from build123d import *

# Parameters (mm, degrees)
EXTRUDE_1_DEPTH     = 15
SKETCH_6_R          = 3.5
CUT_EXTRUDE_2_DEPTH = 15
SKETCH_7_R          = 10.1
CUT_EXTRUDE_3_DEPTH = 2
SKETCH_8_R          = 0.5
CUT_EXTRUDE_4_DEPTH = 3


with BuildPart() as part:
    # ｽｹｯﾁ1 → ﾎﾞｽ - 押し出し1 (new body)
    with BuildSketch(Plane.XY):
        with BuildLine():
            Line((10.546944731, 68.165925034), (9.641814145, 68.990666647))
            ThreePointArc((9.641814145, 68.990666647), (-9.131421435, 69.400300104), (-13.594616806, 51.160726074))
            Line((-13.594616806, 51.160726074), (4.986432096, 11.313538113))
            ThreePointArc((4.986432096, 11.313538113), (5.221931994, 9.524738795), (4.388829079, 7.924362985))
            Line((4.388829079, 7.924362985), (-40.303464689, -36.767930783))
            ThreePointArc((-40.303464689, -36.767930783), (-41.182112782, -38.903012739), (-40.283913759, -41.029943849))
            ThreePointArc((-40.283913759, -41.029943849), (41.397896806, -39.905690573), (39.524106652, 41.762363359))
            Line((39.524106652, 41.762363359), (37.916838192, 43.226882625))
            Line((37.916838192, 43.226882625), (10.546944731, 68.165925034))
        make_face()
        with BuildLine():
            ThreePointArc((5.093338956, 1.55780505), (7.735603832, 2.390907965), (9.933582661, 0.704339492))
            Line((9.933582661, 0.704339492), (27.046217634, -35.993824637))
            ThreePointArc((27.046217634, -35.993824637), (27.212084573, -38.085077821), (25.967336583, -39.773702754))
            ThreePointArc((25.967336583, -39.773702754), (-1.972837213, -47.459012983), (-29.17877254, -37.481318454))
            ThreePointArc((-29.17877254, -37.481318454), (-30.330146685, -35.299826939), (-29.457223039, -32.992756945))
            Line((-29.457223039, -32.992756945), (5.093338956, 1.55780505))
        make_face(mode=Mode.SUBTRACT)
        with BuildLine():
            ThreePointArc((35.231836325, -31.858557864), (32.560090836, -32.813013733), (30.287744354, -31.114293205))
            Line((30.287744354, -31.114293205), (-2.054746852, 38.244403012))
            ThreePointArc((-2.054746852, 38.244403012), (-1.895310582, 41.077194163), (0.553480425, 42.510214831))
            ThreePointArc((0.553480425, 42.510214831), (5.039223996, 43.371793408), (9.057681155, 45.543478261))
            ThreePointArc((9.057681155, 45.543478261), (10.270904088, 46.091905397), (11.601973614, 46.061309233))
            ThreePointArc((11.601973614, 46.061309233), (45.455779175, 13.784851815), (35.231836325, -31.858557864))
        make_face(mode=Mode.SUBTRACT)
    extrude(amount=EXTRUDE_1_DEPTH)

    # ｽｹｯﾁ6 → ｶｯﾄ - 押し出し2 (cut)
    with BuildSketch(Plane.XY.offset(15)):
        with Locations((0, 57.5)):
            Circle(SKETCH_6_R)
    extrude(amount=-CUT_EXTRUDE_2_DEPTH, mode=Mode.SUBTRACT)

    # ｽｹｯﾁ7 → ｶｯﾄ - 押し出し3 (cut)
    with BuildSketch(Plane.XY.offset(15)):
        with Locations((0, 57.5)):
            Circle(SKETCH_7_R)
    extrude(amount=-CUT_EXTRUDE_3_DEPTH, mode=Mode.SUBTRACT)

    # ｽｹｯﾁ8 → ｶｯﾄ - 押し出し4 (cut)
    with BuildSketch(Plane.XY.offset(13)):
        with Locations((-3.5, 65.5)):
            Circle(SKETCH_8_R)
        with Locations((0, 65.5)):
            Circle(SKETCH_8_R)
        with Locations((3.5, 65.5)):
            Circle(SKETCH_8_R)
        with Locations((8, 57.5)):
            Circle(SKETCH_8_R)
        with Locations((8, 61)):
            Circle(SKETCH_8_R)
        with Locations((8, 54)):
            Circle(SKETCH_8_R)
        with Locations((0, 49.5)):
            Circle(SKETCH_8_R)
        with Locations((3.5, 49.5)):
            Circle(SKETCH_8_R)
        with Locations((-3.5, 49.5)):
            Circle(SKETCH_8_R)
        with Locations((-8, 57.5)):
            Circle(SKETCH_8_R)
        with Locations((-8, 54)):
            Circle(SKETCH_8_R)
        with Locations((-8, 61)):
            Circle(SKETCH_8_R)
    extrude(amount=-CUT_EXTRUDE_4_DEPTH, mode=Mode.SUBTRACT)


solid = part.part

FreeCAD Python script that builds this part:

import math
import FreeCAD as App
import Part
import Sketcher

V = App.Vector
Q = App.Units.Quantity

doc = App.newDocument("Part")
body = doc.addObject("PartDesign::Body", "Body")

sketch1 = body.newObject("Sketcher::SketchObject", "Sketch")
sketch1.AttachmentSupport = (doc.getObject("XY_Plane"), [""])
sketch1.MapMode = "FlatFace"
sketch1.addGeometry([
    Part.LineSegment(V(10.546945, 68.165925, 0), V(9.641814, 68.990667, 0)),
    Part.ArcOfCircle(Part.Circle(V(0, 57.5, 0), V(0, 0, 1), 15), math.radians(50), math.radians(205)),
    Part.LineSegment(V(-13.594617, 51.160726, 0), V(4.986432, 11.313538, 0)),
    Part.ArcOfCircle(Part.Circle(V(2.267509, 10.045683, 0), V(0, 0, 1), 3), math.radians(-45), math.radians(25)),
    Part.LineSegment(V(4.388829, 7.924363, 0), V(-40.303465, -36.767931, 0)),
    Part.ArcOfCircle(Part.Circle(V(-38.182144, -38.889251, 0), V(0, 0, 1), 3), math.radians(135), math.radians(225.525657)),
    Part.ArcOfCircle(Part.Circle(V(0, 0, 0), V(0, 0, 1), 57.5), math.radians(-134.474343), math.radians(46.577265)),
    Part.LineSegment(V(39.524107, 41.762363, 0), V(37.916838, 43.226883, 0)),
    Part.LineSegment(V(37.916838, 43.226883, 0), V(10.546945, 68.165925, 0)),
    Part.LineSegment(V(-29.457223, -32.992757, 0), V(5.093339, 1.557805, 0)),
    Part.ArcOfCircle(Part.Circle(V(7.214659, -0.563515, 0), V(0, 0, 1), 3), math.radians(25), math.radians(135)),
    Part.LineSegment(V(9.933583, 0.704339, 0), V(27.046218, -35.993825, 0)),
    Part.ArcOfCircle(Part.Circle(V(24.327294, -37.261679, 0), V(0, 0, 1), 3), math.radians(-56.860403), math.radians(25)),
    Part.ArcOfCircle(Part.Circle(V(0, 0, 0), V(0, 0, 1), 47.5), math.radians(-127.900345), math.radians(-56.860403)),
    Part.ArcOfCircle(Part.Circle(V(-27.335903, -35.114077, 0), V(0, 0, 1), 3), math.radians(135), math.radians(232.099655)),
    Part.ArcOfCircle(Part.Circle(V(0, 0, 0), V(0, 0, 1), 47.5), math.radians(-42.121615), math.radians(75.862362)),
    Part.ArcOfCircle(Part.Circle(V(33.006668, -29.846438, 0), V(0, 0, 1), 3), math.radians(-155), math.radians(-42.121615)),
    Part.LineSegment(V(30.287744, -31.114293, 0), V(-2.054747, 38.244403, 0)),
    Part.ArcOfCircle(Part.Circle(V(0.664177, 39.512258, 0), V(0, 0, 1), 3), math.radians(92.11462), math.radians(205)),
    Part.ArcOfCircle(Part.Circle(V(0, 57.5, 0), V(0, 0, 1), 15), math.radians(-87.88538), math.radians(-52.854196)),
    Part.ArcOfCircle(Part.Circle(V(10.869217, 43.152174, 0), V(0, 0, 1), 3), math.radians(75.862362), math.radians(127.145804)),
], False)
sketch1.addConstraint([
    Sketcher.Constraint("Coincident", 0, 2, 1, 1),
    Sketcher.Constraint("Coincident", 1, 2, 2, 1),
    Sketcher.Constraint("Coincident", 2, 2, 3, 2),
    Sketcher.Constraint("Coincident", 3, 1, 4, 1),
    Sketcher.Constraint("Coincident", 4, 2, 5, 1),
    Sketcher.Constraint("Coincident", 5, 2, 6, 1),
    Sketcher.Constraint("Coincident", 6, 2, 7, 1),
    Sketcher.Constraint("Coincident", 7, 2, 8, 1),
    Sketcher.Constraint("Coincident", 8, 2, 0, 1),
    Sketcher.Constraint("Coincident", 9, 2, 10, 2),
    Sketcher.Constraint("Coincident", 10, 1, 11, 1),
    Sketcher.Constraint("Coincident", 11, 2, 12, 2),
    Sketcher.Constraint("Coincident", 12, 1, 13, 2),
    Sketcher.Constraint("Coincident", 13, 1, 14, 2),
    Sketcher.Constraint("Coincident", 14, 1, 9, 1),
    Sketcher.Constraint("Coincident", 15, 1, 16, 2),
    Sketcher.Constraint("Coincident", 16, 1, 17, 1),
    Sketcher.Constraint("Coincident", 17, 2, 18, 2),
    Sketcher.Constraint("Coincident", 18, 1, 19, 1),
    Sketcher.Constraint("Coincident", 19, 2, 20, 2),
    Sketcher.Constraint("Coincident", 20, 1, 15, 2),
    Sketcher.Constraint("Coincident", 6, 3, -1, 1),
    Sketcher.Constraint("Coincident", 13, 3, -1, 1),
    Sketcher.Constraint("Coincident", 15, 3, -1, 1),
    Sketcher.Constraint("Coincident", 19, 3, 1, 3),
    Sketcher.Constraint("PointOnObject", 1, 3, -2),
    Sketcher.Constraint("Radius", 1, Q("15 mm")),
    Sketcher.Constraint("Radius", 3, Q("3 mm")),
    Sketcher.Constraint("Radius", 5, Q("3 mm")),
    Sketcher.Constraint("Radius", 10, Q("3 mm")),
    Sketcher.Constraint("Radius", 12, Q("3 mm")),
    Sketcher.Constraint("Radius", 14, Q("3 mm")),
    Sketcher.Constraint("Radius", 16, Q("3 mm")),
    Sketcher.Constraint("Radius", 18, Q("3 mm")),
    Sketcher.Constraint("Radius", 19, Q("15 mm")),
    Sketcher.Constraint("Radius", 20, Q("3 mm")),
    Sketcher.Constraint("Radius", 6, Q("57.5 mm")),
    Sketcher.Constraint("Radius", 13, Q("47.5 mm")),
    Sketcher.Constraint("Radius", 15, Q("47.5 mm")),
    Sketcher.Constraint("DistanceY", -1, 1, 1, 3, Q("57.5 mm")),
    Sketcher.Constraint("DistanceY", 10, 3, 3, 3, Q("10.609199 mm")),
    Sketcher.Constraint("DistanceY", 1, 2, 8, 2, Q("17.005199 mm")),
    Sketcher.Constraint("DistanceX", 12, 1, 15, 1, Q("9.2645 mm")),
    Sketcher.Constraint("DistanceX", 18, 1, 19, 2, Q("8.504201 mm")),
    Sketcher.Constraint("Distance", 8, Q("37.027921 mm")),
    Sketcher.Constraint("DistanceX", -1, 1, 3, 3, Q("2.267509 mm")),
    Sketcher.Constraint("DistanceY", 5, 3, -1, 1, Q("38.889251 mm")),
    Sketcher.Constraint("DistanceX", -1, 1, 10, 3, Q("7.214659 mm")),
    Sketcher.Constraint("DistanceY", 12, 3, -1, 1, Q("37.261679 mm")),
    Sketcher.Constraint("DistanceY", 16, 3, -1, 1, Q("29.846438 mm")),
    Sketcher.Constraint("DistanceY", -1, 1, 2, 2, Q("11.313538 mm")),
    Sketcher.Constraint("DistanceX", -1, 1, 3, 1, Q("4.388829 mm")),
    Sketcher.Constraint("DistanceY", 4, 2, -1, 1, Q("36.767931 mm")),
    Sketcher.Constraint("DistanceX", -1, 1, 7, 2, Q("37.916838 mm")),
    Sketcher.Constraint("DistanceX", -1, 1, 9, 2, Q("5.093339 mm")),
    Sketcher.Constraint("DistanceY", -1, 1, 10, 1, Q("0.704339 mm")),
    Sketcher.Constraint("DistanceY", 13, 1, -1, 1, Q("37.481318 mm")),
    Sketcher.Constraint("DistanceX", -1, 1, 18, 1, Q("0.55348 mm")),
    Sketcher.Constraint("DistanceY", -1, 1, 20, 1, Q("46.061309 mm")),
    Sketcher.Constraint("DistanceX", 5, 3, 14, 3, Q("10.846242 mm")),
    Sketcher.Constraint("DistanceY", 14, 3, 10, 3, Q("34.550562 mm")),
    Sketcher.Constraint("DistanceX", 18, 3, 20, 3, Q("10.205041 mm")),
    Sketcher.Constraint("DistanceY", 18, 3, 0, 2, Q("29.478409 mm")),
    Sketcher.Constraint("DistanceY", 18, 3, 1, 2, Q("11.648468 mm")),
    Sketcher.Constraint("DistanceX", 5, 2, 5, 3, Q("2.101769 mm")),
    Sketcher.Constraint("DistanceX", 20, 3, 6, 2, Q("28.654889 mm")),
    Sketcher.Constraint("DistanceY", 6, 2, 7, 2, Q("1.464519 mm")),
    Sketcher.Constraint("DistanceX", 11, 2, 16, 3, Q("5.96045 mm")),
    Sketcher.Constraint("DistanceX", 12, 1, 11, 2, Q("1.078881 mm")),
    Sketcher.Constraint("DistanceX", 14, 1, 14, 3, Q("2.12132 mm")),
    Sketcher.Constraint("DistanceX", 16, 1, 15, 1, Q("4.944092 mm")),
    Sketcher.Constraint("DistanceY", 17, 2, 20, 3, Q("4.907771 mm")),
])
pad1 = body.newObject("PartDesign::Pad", "Pad")
pad1.Profile = sketch1
pad1.Length = 15

sketch2 = body.newObject("Sketcher::SketchObject", "Sketch001")
sketch2.AttachmentSupport = (doc.getObject("XY_Plane"), [""])
sketch2.MapMode = "FlatFace"
sketch2.AttachmentOffset = App.Placement(V(0, 0, 15), App.Rotation())
sketch2.addGeometry(Part.Circle(V(0, 57.5, 0), V(0, 0, 1), 3.5), False)
sketch2.addConstraint([
    Sketcher.Constraint("PointOnObject", 0, 3, -2),
    Sketcher.Constraint("Diameter", 0, Q("7 mm")),
    Sketcher.Constraint("DistanceY", -1, 1, 0, 3, Q("57.5 mm")),
])
pocket1 = body.newObject("PartDesign::Pocket", "Pocket")
pocket1.Profile = sketch2
pocket1.Length = 15

sketch3 = body.newObject("Sketcher::SketchObject", "Sketch002")
sketch3.AttachmentSupport = (doc.getObject("XY_Plane"), [""])
sketch3.MapMode = "FlatFace"
sketch3.AttachmentOffset = App.Placement(V(0, 0, 15), App.Rotation())
sketch3.addGeometry(Part.Circle(V(0, 58, 0), V(0, 0, 1), 10), False)
sketch3.addConstraint([
    Sketcher.Constraint("PointOnObject", 0, 3, -2),
    Sketcher.Constraint("Diameter", 0, Q("20.2 mm")),
    Sketcher.Constraint("DistanceY", -1, 1, 0, 3, Q("57.5 mm")),
])
pocket2 = body.newObject("PartDesign::Pocket", "Pocket001")
pocket2.Profile = sketch3
pocket2.Length = 2

sketch4 = body.newObject("Sketcher::SketchObject", "Sketch003")
sketch4.AttachmentSupport = (doc.getObject("XY_Plane"), [""])
sketch4.MapMode = "FlatFace"
sketch4.AttachmentOffset = App.Placement(V(0, 0, 13), App.Rotation())
sketch4.addGeometry([
    Part.Circle(V(-3.5, 65.5, 0), V(0, 0, 1), 0.5),
    Part.Circle(V(0, 65.5, 0), V(0, 0, 1), 0.5),
    Part.Circle(V(3.5, 65.5, 0), V(0, 0, 1), 0.5),
    Part.Circle(V(8, 57.5, 0), V(0, 0, 1), 0.5),
    Part.Circle(V(8, 61, 0), V(0, 0, 1), 0.5),
    Part.Circle(V(8, 54, 0), V(0, 0, 1), 0.5),
    Part.Circle(V(0, 49.5, 0), V(0, 0, 1), 0.5),
    Part.Circle(V(3.5, 49.5, 0), V(0, 0, 1), 0.5),
    Part.Circle(V(-3.5, 49.5, 0), V(0, 0, 1), 0.5),
    Part.Circle(V(-8, 57.5, 0), V(0, 0, 1), 0.5),
    Part.Circle(V(-8, 54, 0), V(0, 0, 1), 0.5),
    Part.Circle(V(-8, 61, 0), V(0, 0, 1), 0.5),
], False)
sketch4.addConstraint([
    Sketcher.Constraint("Equal", 0, 1),
    Sketcher.Constraint("Equal", 1, 2),
    Sketcher.Constraint("Equal", 2, 3),
    Sketcher.Constraint("Equal", 3, 4),
    Sketcher.Constraint("Equal", 4, 5),
    Sketcher.Constraint("Equal", 5, 6),
    Sketcher.Constraint("Equal", 6, 7),
    Sketcher.Constraint("Equal", 7, 8),
    Sketcher.Constraint("Equal", 8, 9),
    Sketcher.Constraint("Equal", 9, 10),
    Sketcher.Constraint("Equal", 10, 11),
    Sketcher.Constraint("Symmetric", 0, 3, 2, 3, -2),
    Sketcher.Constraint("Symmetric", 7, 3, 8, 3, -2),
    Sketcher.Constraint("Symmetric", 3, 3, 9, 3, -2),
    Sketcher.Constraint("Symmetric", 5, 3, 10, 3, -2),
    Sketcher.Constraint("Symmetric", 4, 3, 11, 3, -2),
    Sketcher.Constraint("PointOnObject", 1, 3, -2),
    Sketcher.Constraint("PointOnObject", 6, 3, -2),
    Sketcher.Constraint("Horizontal", 0, 3, 1, 3),
    Sketcher.Constraint("Horizontal", 6, 3, 7, 3),
    Sketcher.Constraint("Vertical", 3, 3, 4, 3),
    Sketcher.Constraint("Vertical", 4, 3, 5, 3),
    Sketcher.Constraint("Vertical", 2, 3, 7, 3),
    Sketcher.Constraint("Diameter", 0, Q("1 mm")),
    Sketcher.Constraint("DistanceX", -1, 1, 3, 3, Q("8 mm")),
    Sketcher.Constraint("DistanceY", -1, 1, 4, 3, Q("61 mm")),
    Sketcher.Constraint("DistanceY", -1, 1, 5, 3, Q("54 mm")),
    Sketcher.Constraint("DistanceX", 0, 3, 2, 3, Q("7 mm")),
    Sketcher.Constraint("DistanceY", 3, 3, 2, 3, Q("8 mm")),
    Sketcher.Constraint("DistanceY", 6, 3, 3, 3, Q("8 mm")),
    Sketcher.Constraint("DistanceY", -1, 1, 0, 3, Q("65.5 mm")),
])
pocket3 = body.newObject("PartDesign::Pocket", "Pocket002")
pocket3.Profile = sketch4
pocket3.Length = 3

doc.recompute()
